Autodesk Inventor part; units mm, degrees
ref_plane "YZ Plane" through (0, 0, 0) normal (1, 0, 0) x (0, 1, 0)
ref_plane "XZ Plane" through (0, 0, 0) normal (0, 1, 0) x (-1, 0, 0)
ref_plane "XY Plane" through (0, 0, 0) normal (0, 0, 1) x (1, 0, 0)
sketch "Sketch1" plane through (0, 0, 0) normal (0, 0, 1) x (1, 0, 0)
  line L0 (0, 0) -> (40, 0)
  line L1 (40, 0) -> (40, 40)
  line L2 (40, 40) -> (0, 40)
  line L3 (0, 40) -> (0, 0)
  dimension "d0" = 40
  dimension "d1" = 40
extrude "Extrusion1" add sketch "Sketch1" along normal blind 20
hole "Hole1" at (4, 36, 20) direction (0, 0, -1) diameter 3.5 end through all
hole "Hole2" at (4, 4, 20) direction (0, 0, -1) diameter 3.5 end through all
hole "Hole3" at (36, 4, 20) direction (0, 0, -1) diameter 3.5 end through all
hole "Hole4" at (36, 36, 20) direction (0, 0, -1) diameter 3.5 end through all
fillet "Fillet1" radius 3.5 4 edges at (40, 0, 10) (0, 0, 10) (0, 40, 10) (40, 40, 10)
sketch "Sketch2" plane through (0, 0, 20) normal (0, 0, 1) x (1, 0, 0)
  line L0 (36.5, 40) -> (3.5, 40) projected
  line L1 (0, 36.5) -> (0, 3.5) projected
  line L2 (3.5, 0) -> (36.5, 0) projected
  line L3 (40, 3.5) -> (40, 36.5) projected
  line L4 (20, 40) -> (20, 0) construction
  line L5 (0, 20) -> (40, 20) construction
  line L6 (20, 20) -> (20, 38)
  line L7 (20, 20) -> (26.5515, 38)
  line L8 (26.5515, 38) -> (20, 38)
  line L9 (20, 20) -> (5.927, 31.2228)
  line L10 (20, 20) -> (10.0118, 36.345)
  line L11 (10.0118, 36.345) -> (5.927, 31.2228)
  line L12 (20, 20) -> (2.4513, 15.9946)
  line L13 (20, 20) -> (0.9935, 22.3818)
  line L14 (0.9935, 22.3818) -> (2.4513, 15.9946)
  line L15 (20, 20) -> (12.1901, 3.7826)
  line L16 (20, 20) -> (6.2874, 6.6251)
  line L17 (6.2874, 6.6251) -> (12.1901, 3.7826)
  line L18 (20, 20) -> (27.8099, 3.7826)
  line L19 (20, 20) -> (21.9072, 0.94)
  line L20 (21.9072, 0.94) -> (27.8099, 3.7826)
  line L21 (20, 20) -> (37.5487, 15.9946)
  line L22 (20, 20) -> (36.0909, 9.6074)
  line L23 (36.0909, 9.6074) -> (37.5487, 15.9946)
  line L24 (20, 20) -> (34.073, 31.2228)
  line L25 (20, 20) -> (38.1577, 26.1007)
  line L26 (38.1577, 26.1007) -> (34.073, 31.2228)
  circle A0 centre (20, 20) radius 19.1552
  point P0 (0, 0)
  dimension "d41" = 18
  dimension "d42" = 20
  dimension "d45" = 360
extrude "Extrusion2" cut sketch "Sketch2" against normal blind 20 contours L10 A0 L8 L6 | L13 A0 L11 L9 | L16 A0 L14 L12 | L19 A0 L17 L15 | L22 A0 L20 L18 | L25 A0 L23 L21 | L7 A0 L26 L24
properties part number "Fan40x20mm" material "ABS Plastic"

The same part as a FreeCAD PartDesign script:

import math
import FreeCAD as App
import Part
import Sketcher
Q = App.Units.Quantity


def edges_at(feature, points):
    """Names of the edges that pass closest to the given points."""
    edges = feature.Shape.Edges
    near = lambda p: min(range(len(edges)), key=lambda i: edges[i].distToShape(Part.Vertex(*p))[0])
    return sorted({f"Edge{near(p) + 1}" for p in points})

doc = App.newDocument("Part")
body = doc.addObject("PartDesign::Body", "Body")
body.AllowCompound = True

sketch1 = body.newObject("Sketcher::SketchObject", "Sketch")
sketch1.AttachmentSupport = (doc.getObject("XY_Plane"), [""])
sketch1.MapMode = "FlatFace"
sketch1.addGeometry(Part.LineSegment(App.Vector(0, 40, 0), App.Vector(0, 0, 0)), False)
sketch1.addGeometry(Part.LineSegment(App.Vector(0, 0, 0), App.Vector(40, 0, 0)), False)
sketch1.addGeometry(Part.LineSegment(App.Vector(40, 0, 0), App.Vector(40, 40, 0)), False)
sketch1.addGeometry(Part.LineSegment(App.Vector(40, 40, 0), App.Vector(0, 40, 0)), False)
sketch1.addConstraint(Sketcher.Constraint("Coincident", 0, 2, 1, 1))
sketch1.addConstraint(Sketcher.Constraint("Coincident", 1, 2, 2, 1))
sketch1.addConstraint(Sketcher.Constraint("Coincident", 2, 2, 3, 1))
sketch1.addConstraint(Sketcher.Constraint("Coincident", 3, 2, 0, 1))
sketch1.addConstraint(Sketcher.Constraint("Vertical", 0))
sketch1.addConstraint(Sketcher.Constraint("Horizontal", 1))
sketch1.addConstraint(Sketcher.Constraint("Vertical", 2))
sketch1.addConstraint(Sketcher.Constraint("Horizontal", 3))
sketch1.addConstraint(Sketcher.Constraint("Coincident", 0, 2, -1, 1))
sketch1.addConstraint(Sketcher.Constraint("Equal", 3, 0))
sketch1.addConstraint(Sketcher.Constraint("DistanceX", 1, 1, 1, 2, Q("40 mm")))
pad1 = body.newObject("PartDesign::Pad", "Pad")
pad1.Profile = sketch1
pad1.Length = 20

sketch2 = body.newObject("Sketcher::SketchObject", "Sketch001")
sketch2.AttachmentSupport = (doc.getObject("XY_Plane"), [""])
sketch2.MapMode = "FlatFace"
sketch2.AttachmentOffset = App.Placement(App.Vector(0, 0, 20), App.Rotation())
sketch2.addGeometry(Part.Circle(App.Vector(4, 36, 0), App.Vector(0, 0, 1), 1.8), False)
sketch2.addConstraint(Sketcher.Constraint("Diameter", 0, Q("3.5 mm")))
sketch2.addConstraint(Sketcher.Constraint("DistanceX", -1, 1, 0, 3, Q("4 mm")))
sketch2.addConstraint(Sketcher.Constraint("DistanceY", -1, 1, 0, 3, Q("36 mm")))
doc.recompute()
hole = body.newObject("PartDesign::Hole", "Hole")
hole.Profile = sketch2
hole.ThreadType = "None"
hole.Diameter = 3.5
hole.DepthType = "ThroughAll"

sketch3 = body.newObject("Sketcher::SketchObject", "Sketch002")
sketch3.AttachmentSupport = (doc.getObject("XY_Plane"), [""])
sketch3.MapMode = "FlatFace"
sketch3.AttachmentOffset = App.Placement(App.Vector(0, 0, 20), App.Rotation())
sketch3.addGeometry(Part.Circle(App.Vector(4, 4, 0), App.Vector(0, 0, 1), 1.8), False)
sketch3.addConstraint(Sketcher.Constraint("Diameter", 0, Q("3.5 mm")))
sketch3.addConstraint(Sketcher.Constraint("DistanceX", -1, 1, 0, 3, Q("4 mm")))
sketch3.addConstraint(Sketcher.Constraint("DistanceY", -1, 1, 0, 3, Q("4 mm")))
doc.recompute()
hole2 = body.newObject("PartDesign::Hole", "Hole001")
hole2.Profile = sketch3
hole2.ThreadType = "None"
hole2.Diameter = 3.5
hole2.DepthType = "ThroughAll"

sketch4 = body.newObject("Sketcher::SketchObject", "Sketch003")
sketch4.AttachmentSupport = (doc.getObject("XY_Plane"), [""])
sketch4.MapMode = "FlatFace"
sketch4.AttachmentOffset = App.Placement(App.Vector(0, 0, 20), App.Rotation())
sketch4.addGeometry(Part.Circle(App.Vector(36, 4, 0), App.Vector(0, 0, 1), 1.8), False)
sketch4.addConstraint(Sketcher.Constraint("Diameter", 0, Q("3.5 mm")))
sketch4.addConstraint(Sketcher.Constraint("DistanceX", -1, 1, 0, 3, Q("36 mm")))
sketch4.addConstraint(Sketcher.Constraint("DistanceY", -1, 1, 0, 3, Q("4 mm")))
doc.recompute()
hole3 = body.newObject("PartDesign::Hole", "Hole002")
hole3.Profile = sketch4
hole3.ThreadType = "None"
hole3.Diameter = 3.5
hole3.DepthType = "ThroughAll"

sketch5 = body.newObject("Sketcher::SketchObject", "Sketch004")
sketch5.AttachmentSupport = (doc.getObject("XY_Plane"), [""])
sketch5.MapMode = "FlatFace"
sketch5.AttachmentOffset = App.Placement(App.Vector(0, 0, 20), App.Rotation())
sketch5.addGeometry(Part.Circle(App.Vector(36, 36, 0), App.Vector(0, 0, 1), 1.8), False)
sketch5.addConstraint(Sketcher.Constraint("Diameter", 0, Q("3.5 mm")))
sketch5.addConstraint(Sketcher.Constraint("DistanceX", -1, 1, 0, 3, Q("36 mm")))
sketch5.addConstraint(Sketcher.Constraint("DistanceY", -1, 1, 0, 3, Q("36 mm")))
doc.recompute()
hole4 = body.newObject("PartDesign::Hole", "Hole003")
hole4.Profile = sketch5
hole4.ThreadType = "None"
hole4.Diameter = 3.5
hole4.DepthType = "ThroughAll"
doc.recompute()

fillet = body.newObject("PartDesign::Fillet", "Fillet")
fillet.Base = (hole4, edges_at(hole4, [
    (40, 0, 10),
    (0, 0, 10),
    (0, 40, 10),
    (40, 40, 10),
]))
fillet.Radius = 3.5

sketch6 = body.newObject("Sketcher::SketchObject", "Sketch005")
sketch6.AttachmentSupport = (doc.getObject("XY_Plane"), [""])
sketch6.MapMode = "FlatFace"
sketch6.AttachmentOffset = App.Placement(App.Vector(0, 0, 20), App.Rotation())
sketch6.addGeometry(Part.LineSegment(App.Vector(10, 36, 0), App.Vector(20, 20, 0)), False)
sketch6.addGeometry(Part.LineSegment(App.Vector(20, 20, 0), App.Vector(20, 38, 0)), False)
sketch6.addGeometry(Part.LineSegment(App.Vector(20, 38, 0), App.Vector(27, 38, 0)), False)
sketch6.addGeometry(Part.ArcOfCircle(Part.Circle(App.Vector(20, 20, 0), App.Vector(0, 0, 1), 19), math.radians(70), math.radians(121)), False)
sketch6.addGeometry(Part.LineSegment(App.Vector(1, 22, 0), App.Vector(20, 20, 0)), False)
sketch6.addGeometry(Part.LineSegment(App.Vector(20, 20, 0), App.Vector(6, 31, 0)), False)
sketch6.addGeometry(Part.LineSegment(App.Vector(6, 31, 0), App.Vector(10, 36, 0)), False)
sketch6.addGeometry(Part.ArcOfCircle(Part.Circle(App.Vector(20, 20, 0), App.Vector(0, 0, 1), 19), math.radians(121), math.radians(173)), False)
sketch6.addGeometry(Part.LineSegment(App.Vector(6, 7, 0), App.Vector(20, 20, 0)), False)
sketch6.addGeometry(Part.LineSegment(App.Vector(20, 20, 0), App.Vector(2, 16, 0)), False)
sketch6.addGeometry(Part.LineSegment(App.Vector(2, 16, 0), App.Vector(1, 22, 0)), False)
sketch6.addGeometry(Part.ArcOfCircle(Part.Circle(App.Vector(20, 20, 0), App.Vector(0, 0, 1), 19), math.radians(173), math.radians(224)), False)
sketch6.addGeometry(Part.LineSegment(App.Vector(22, 1, 0), App.Vector(20, 20, 0)), False)
sketch6.addGeometry(Part.LineSegment(App.Vector(20, 20, 0), App.Vector(12, 4, 0)), False)
sketch6.addGeometry(Part.LineSegment(App.Vector(12, 4, 0), App.Vector(6, 7, 0)), False)
sketch6.addGeometry(Part.ArcOfCircle(Part.Circle(App.Vector(20, 20, 0), App.Vector(0, 0, 1), 19), math.radians(-136), math.radians(-84)), False)
sketch6.addGeometry(Part.LineSegment(App.Vector(36, 10, 0), App.Vector(20, 20, 0)), False)
sketch6.addGeometry(Part.LineSegment(App.Vector(20, 20, 0), App.Vector(28, 4, 0)), False)
sketch6.addGeometry(Part.LineSegment(App.Vector(28, 4, 0), App.Vector(22, 1, 0)), False)
sketch6.addGeometry(Part.ArcOfCircle(Part.Circle(App.Vector(20, 20, 0), App.Vector(0, 0, 1), 19), math.radians(-84), math.radians(-33)), False)
sketch6.addGeometry(Part.LineSegment(App.Vector(38, 26, 0), App.Vector(20, 20, 0)), False)
sketch6.addGeometry(Part.LineSegment(App.Vector(20, 20, 0), App.Vector(38, 16, 0)), False)
sketch6.addGeometry(Part.LineSegment(App.Vector(38, 16, 0), App.Vector(36, 10, 0)), False)
sketch6.addGeometry(Part.ArcOfCircle(Part.Circle(App.Vector(20, 20, 0), App.Vector(0, 0, 1), 19), math.radians(-33), math.radians(19)), False)
sketch6.addGeometry(Part.LineSegment(App.Vector(27, 38, 0), App.Vector(20, 20, 0)), False)
sketch6.addGeometry(Part.LineSegment(App.Vector(20, 20, 0), App.Vector(34, 31, 0)), False)
sketch6.addGeometry(Part.LineSegment(App.Vector(34, 31, 0), App.Vector(38, 26, 0)), False)
sketch6.addGeometry(Part.ArcOfCircle(Part.Circle(App.Vector(20, 20, 0), App.Vector(0, 0, 1), 19), math.radians(19), math.radians(70)), False)
sketch6.addConstraint(Sketcher.Constraint("Coincident", 0, 2, 1, 1))
sketch6.addConstraint(Sketcher.Constraint("Coincident", 1, 2, 2, 1))
sketch6.addConstraint(Sketcher.Constraint("Coincident", 2, 2, 3, 1))
sketch6.addConstraint(Sketcher.Constraint("Coincident", 3, 2, 0, 1))
sketch6.addConstraint(Sketcher.Constraint("Coincident", 4, 2, 5, 1))
sketch6.addConstraint(Sketcher.Constraint("Coincident", 5, 2, 6, 1))
sketch6.addConstraint(Sketcher.Constraint("Coincident", 6, 2, 7, 1))
sketch6.addConstraint(Sketcher.Constraint("Coincident", 7, 2, 4, 1))
sketch6.addConstraint(Sketcher.Constraint("Coincident", 8, 2, 9, 1))
sketch6.addConstraint(Sketcher.Constraint("Coincident", 9, 2, 10, 1))
sketch6.addConstraint(Sketcher.Constraint("Coincident", 10, 2, 11, 1))
sketch6.addConstraint(Sketcher.Constraint("Coincident", 11, 2, 8, 1))
sketch6.addConstraint(Sketcher.Constraint("Coincident", 12, 2, 13, 1))
sketch6.addConstraint(Sketcher.Constraint("Coincident", 13, 2, 14, 1))
sketch6.addConstraint(Sketcher.Constraint("Coincident", 14, 2, 15, 1))
sketch6.addConstraint(Sketcher.Constraint("Coincident", 15, 2, 12, 1))
sketch6.addConstraint(Sketcher.Constraint("Coincident", 16, 2, 17, 1))
sketch6.addConstraint(Sketcher.Constraint("Coincident", 17, 2, 18, 1))
sketch6.addConstraint(Sketcher.Constraint("Coincident", 18, 2, 19, 1))
sketch6.addConstraint(Sketcher.Constraint("Coincident", 19, 2, 16, 1))
sketch6.addConstraint(Sketcher.Constraint("Coincident", 20, 2, 21, 1))
sketch6.addConstraint(Sketcher.Constraint("Coincident", 21, 2, 22, 1))
sketch6.addConstraint(Sketcher.Constraint("Coincident", 22, 2, 23, 1))
sketch6.addConstraint(Sketcher.Constraint("Coincident", 23, 2, 20, 1))
sketch6.addConstraint(Sketcher.Constraint("Coincident", 24, 2, 25, 1))
sketch6.addConstraint(Sketcher.Constraint("Coincident", 25, 2, 26, 1))
sketch6.addConstraint(Sketcher.Constraint("Coincident", 26, 2, 27, 1))
sketch6.addConstraint(Sketcher.Constraint("Coincident", 27, 2, 24, 1))
sketch6.addConstraint(Sketcher.Constraint("Vertical", 1))
sketch6.addConstraint(Sketcher.Constraint("Horizontal", 2))
sketch6.addConstraint(Sketcher.Constraint("Coincident", 7, 3, 3, 3))
sketch6.addConstraint(Sketcher.Constraint("Coincident", 11, 3, 3, 3))
sketch6.addConstraint(Sketcher.Constraint("Coincident", 15, 3, 3, 3))
sketch6.addConstraint(Sketcher.Constraint("Coincident", 19, 3, 3, 3))
sketch6.addConstraint(Sketcher.Constraint("Coincident", 23, 3, 3, 3))
sketch6.addConstraint(Sketcher.Constraint("Coincident", 27, 3, 3, 3))
sketch6.addConstraint(Sketcher.Constraint("Coincident", 0, 2, 3, 3))
sketch6.addConstraint(Sketcher.Constraint("Coincident", 4, 2, 3, 3))
sketch6.addConstraint(Sketcher.Constraint("Coincident", 6, 2, 3, 2))
sketch6.addConstraint(Sketcher.Constraint("Coincident", 8, 2, 3, 3))
sketch6.addConstraint(Sketcher.Constraint("Coincident", 10, 2, 7, 2))
sketch6.addConstraint(Sketcher.Constraint("Coincident", 12, 2, 3, 3))
sketch6.addConstraint(Sketcher.Constraint("Coincident", 14, 2, 11, 2))
sketch6.addConstraint(Sketcher.Constraint("Coincident", 16, 2, 3, 3))
sketch6.addConstraint(Sketcher.Constraint("Coincident", 18, 2, 15, 2))
sketch6.addConstraint(Sketcher.Constraint("Coincident", 20, 2, 3, 3))
sketch6.addConstraint(Sketcher.Constraint("Coincident", 22, 2, 19, 2))
sketch6.addConstraint(Sketcher.Constraint("Coincident", 24, 2, 3, 3))
sketch6.addConstraint(Sketcher.Constraint("Coincident", 26, 2, 23, 2))
sketch6.addConstraint(Sketcher.Constraint("Perpendicular", 5, 6))
sketch6.addConstraint(Sketcher.Constraint("Perpendicular", 9, 10))
sketch6.addConstraint(Sketcher.Constraint("Perpendicular", 13, 14))
sketch6.addConstraint(Sketcher.Constraint("Perpendicular", 17, 18))
sketch6.addConstraint(Sketcher.Constraint("Perpendicular", 21, 22))
sketch6.addConstraint(Sketcher.Constraint("Perpendicular", 25, 26))
sketch6.addConstraint(Sketcher.Constraint("Horizontal", 13, 2, 17, 2))
sketch6.addConstraint(Sketcher.Constraint("Horizontal", 9, 2, 21, 2))
sketch6.addConstraint(Sketcher.Constraint("Horizontal", 5, 2, 25, 2))
sketch6.addConstraint(Sketcher.Constraint("Horizontal", 1, 2, 27, 2))
sketch6.addConstraint(Sketcher.Constraint("Equal", 5, 9))
sketch6.addConstraint(Sketcher.Constraint("Equal", 9, 13))
sketch6.addConstraint(Sketcher.Constraint("Equal", 13, 17))
sketch6.addConstraint(Sketcher.Constraint("Equal", 17, 21))
sketch6.addConstraint(Sketcher.Constraint("Equal", 21, 25))
sketch6.addConstraint(Sketcher.Constraint("DistanceY", 1, 1, 1, 2, Q("18 mm")))
sketch6.addConstraint(Sketcher.Constraint("Distance", 5, Q("18 mm")))
sketch6.addConstraint(Sketcher.Constraint("DistanceX", -1, 1, 3, 3, Q("20 mm")))
sketch6.addConstraint(Sketcher.Constraint("DistanceY", -1, 1, 3, 3, Q("20 mm")))
sketch6.addConstraint(Sketcher.Constraint("Angle", 24, Q("-110 deg")))
sketch6.addConstraint(Sketcher.Constraint("Angle", 26, Q("-51.4288 deg")))
sketch6.addConstraint(Sketcher.Constraint("DistanceX", -1, 1, 13, 2, Q("12.19 mm")))
sketch6.addConstraint(Sketcher.Constraint("DistanceX", -1, 1, 22, 2, Q("36.091 mm")))
pocket1 = body.newObject("PartDesign::Pocket", "Pocket")
pocket1.Profile = sketch6
pocket1.Length = 20

doc.recompute()
